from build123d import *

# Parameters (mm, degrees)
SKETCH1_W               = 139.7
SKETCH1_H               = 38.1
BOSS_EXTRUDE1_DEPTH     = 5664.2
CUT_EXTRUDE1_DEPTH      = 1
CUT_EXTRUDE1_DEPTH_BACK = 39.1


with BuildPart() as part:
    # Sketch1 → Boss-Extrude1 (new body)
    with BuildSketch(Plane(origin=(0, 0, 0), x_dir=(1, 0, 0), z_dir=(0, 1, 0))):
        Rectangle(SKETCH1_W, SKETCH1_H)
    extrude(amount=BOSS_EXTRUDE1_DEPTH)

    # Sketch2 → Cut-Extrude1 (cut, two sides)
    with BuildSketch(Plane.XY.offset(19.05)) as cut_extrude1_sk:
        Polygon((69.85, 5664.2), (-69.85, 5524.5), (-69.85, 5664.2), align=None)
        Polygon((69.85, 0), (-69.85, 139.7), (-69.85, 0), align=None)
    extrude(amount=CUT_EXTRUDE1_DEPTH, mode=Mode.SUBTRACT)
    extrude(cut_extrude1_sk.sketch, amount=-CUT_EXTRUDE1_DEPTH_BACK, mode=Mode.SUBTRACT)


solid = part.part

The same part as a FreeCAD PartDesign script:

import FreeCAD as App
import Part
import Sketcher
Q = App.Units.Quantity

doc = App.newDocument("Part")
body = doc.addObject("PartDesign::Body", "Body")

# Sketch on XZ plane
sketch1 = body.newObject("Sketcher::SketchObject", "Sketch")
sketch1.AttachmentSupport = (doc.getObject("XZ_Plane"), [""])
sketch1.MapMode = "FlatFace"
sketch1.addGeometry(Part.LineSegment(App.Vector(-70, -19, 0), App.Vector(-70, 19, 0)), False)
sketch1.addGeometry(Part.LineSegment(App.Vector(-70, 19, 0), App.Vector(70, 19, 0)), False)
sketch1.addGeometry(Part.LineSegment(App.Vector(70, 19, 0), App.Vector(70, -19, 0)), False)
sketch1.addGeometry(Part.LineSegment(App.Vector(70, -19, 0), App.Vector(-70, -19, 0)), False)
sketch1.addConstraint(Sketcher.Constraint("Coincident", 0, 2, 1, 1))
sketch1.addConstraint(Sketcher.Constraint("Coincident", 1, 2, 2, 1))
sketch1.addConstraint(Sketcher.Constraint("Coincident", 2, 2, 3, 1))
sketch1.addConstraint(Sketcher.Constraint("Coincident", 3, 2, 0, 1))
sketch1.addConstraint(Sketcher.Constraint("Vertical", 0))
sketch1.addConstraint(Sketcher.Constraint("Horizontal", 1))
sketch1.addConstraint(Sketcher.Constraint("Vertical", 2))
sketch1.addConstraint(Sketcher.Constraint("Horizontal", 3))
sketch1.addConstraint(Sketcher.Constraint("Symmetric", 0, 2, 2, 2, -1, 1))
sketch1.addConstraint(Sketcher.Constraint("DistanceX", 1, 1, 1, 2, Q("5.5 in")))
sketch1.addConstraint(Sketcher.Constraint("DistanceY", 0, 1, 0, 2, Q("1.5 in")))
pad1 = body.newObject("PartDesign::Pad", "Pad")
pad1.Profile = sketch1
pad1.Length = Q("223 in")
pad1.Reversed = True

# Sketch on XY plane
sketch2 = body.newObject("Sketcher::SketchObject", "Sketch001")
sketch2.AttachmentSupport = (doc.getObject("XY_Plane"), [""])
sketch2.MapMode = "FlatFace"
sketch2.AttachmentOffset = App.Placement(App.Vector(0, 0, 0.75 * 25.4), App.Rotation())
sketch2.addGeometry(Part.LineSegment(App.Vector(-70, 5524, 0), App.Vector(70, 5664, 0)), False)
sketch2.addGeometry(Part.LineSegment(App.Vector(70, 5664, 0), App.Vector(-70, 5664, 0)), False)
sketch2.addGeometry(Part.LineSegment(App.Vector(-70, 5664, 0), App.Vector(-70, 5524, 0)), False)
sketch2.addGeometry(Part.LineSegment(App.Vector(70, 0, 0), App.Vector(-70, 140, 0)), False)
sketch2.addGeometry(Part.LineSegment(App.Vector(-70, 140, 0), App.Vector(-70, 0, 0)), False)
sketch2.addGeometry(Part.LineSegment(App.Vector(-70, 0, 0), App.Vector(70, 0, 0)), False)
sketch2.addConstraint(Sketcher.Constraint("Coincident", 0, 2, 1, 1))
sketch2.addConstraint(Sketcher.Constraint("Coincident", 1, 2, 2, 1))
sketch2.addConstraint(Sketcher.Constraint("Coincident", 2, 2, 0, 1))
sketch2.addConstraint(Sketcher.Constraint("Coincident", 3, 2, 4, 1))
sketch2.addConstraint(Sketcher.Constraint("Coincident", 4, 2, 5, 1))
sketch2.addConstraint(Sketcher.Constraint("Coincident", 5, 2, 3, 1))
sketch2.addConstraint(Sketcher.Constraint("Horizontal", 1))
sketch2.addConstraint(Sketcher.Constraint("Vertical", 2))
sketch2.addConstraint(Sketcher.Constraint("Vertical", 4))
sketch2.addConstraint(Sketcher.Constraint("Horizontal", 5))
sketch2.addConstraint(Sketcher.Constraint("Symmetric", 4, 2, 5, 2, -1, 1))
sketch2.addConstraint(Sketcher.Constraint("Perpendicular", 0, 3))
sketch2.addConstraint(Sketcher.Constraint("Vertical", 2, 2, 3, 2))
sketch2.addConstraint(Sketcher.Constraint("Vertical", 0, 2, 5, 2))
sketch2.addConstraint(Sketcher.Constraint("Equal", 5, 2))
sketch2.addConstraint(Sketcher.Constraint("DistanceX", 1, 2, 1, 1, Q("5.5 in")))
sketch2.addConstraint(Sketcher.Constraint("DistanceY", -1, 1, 0, 2, Q("223 in")))
pocket1 = body.newObject("PartDesign::Pocket", "Pocket")
pocket1.Profile = sketch2
pocket1.Type = "ThroughAll"
pocket1.Midplane = True

doc.recompute()
